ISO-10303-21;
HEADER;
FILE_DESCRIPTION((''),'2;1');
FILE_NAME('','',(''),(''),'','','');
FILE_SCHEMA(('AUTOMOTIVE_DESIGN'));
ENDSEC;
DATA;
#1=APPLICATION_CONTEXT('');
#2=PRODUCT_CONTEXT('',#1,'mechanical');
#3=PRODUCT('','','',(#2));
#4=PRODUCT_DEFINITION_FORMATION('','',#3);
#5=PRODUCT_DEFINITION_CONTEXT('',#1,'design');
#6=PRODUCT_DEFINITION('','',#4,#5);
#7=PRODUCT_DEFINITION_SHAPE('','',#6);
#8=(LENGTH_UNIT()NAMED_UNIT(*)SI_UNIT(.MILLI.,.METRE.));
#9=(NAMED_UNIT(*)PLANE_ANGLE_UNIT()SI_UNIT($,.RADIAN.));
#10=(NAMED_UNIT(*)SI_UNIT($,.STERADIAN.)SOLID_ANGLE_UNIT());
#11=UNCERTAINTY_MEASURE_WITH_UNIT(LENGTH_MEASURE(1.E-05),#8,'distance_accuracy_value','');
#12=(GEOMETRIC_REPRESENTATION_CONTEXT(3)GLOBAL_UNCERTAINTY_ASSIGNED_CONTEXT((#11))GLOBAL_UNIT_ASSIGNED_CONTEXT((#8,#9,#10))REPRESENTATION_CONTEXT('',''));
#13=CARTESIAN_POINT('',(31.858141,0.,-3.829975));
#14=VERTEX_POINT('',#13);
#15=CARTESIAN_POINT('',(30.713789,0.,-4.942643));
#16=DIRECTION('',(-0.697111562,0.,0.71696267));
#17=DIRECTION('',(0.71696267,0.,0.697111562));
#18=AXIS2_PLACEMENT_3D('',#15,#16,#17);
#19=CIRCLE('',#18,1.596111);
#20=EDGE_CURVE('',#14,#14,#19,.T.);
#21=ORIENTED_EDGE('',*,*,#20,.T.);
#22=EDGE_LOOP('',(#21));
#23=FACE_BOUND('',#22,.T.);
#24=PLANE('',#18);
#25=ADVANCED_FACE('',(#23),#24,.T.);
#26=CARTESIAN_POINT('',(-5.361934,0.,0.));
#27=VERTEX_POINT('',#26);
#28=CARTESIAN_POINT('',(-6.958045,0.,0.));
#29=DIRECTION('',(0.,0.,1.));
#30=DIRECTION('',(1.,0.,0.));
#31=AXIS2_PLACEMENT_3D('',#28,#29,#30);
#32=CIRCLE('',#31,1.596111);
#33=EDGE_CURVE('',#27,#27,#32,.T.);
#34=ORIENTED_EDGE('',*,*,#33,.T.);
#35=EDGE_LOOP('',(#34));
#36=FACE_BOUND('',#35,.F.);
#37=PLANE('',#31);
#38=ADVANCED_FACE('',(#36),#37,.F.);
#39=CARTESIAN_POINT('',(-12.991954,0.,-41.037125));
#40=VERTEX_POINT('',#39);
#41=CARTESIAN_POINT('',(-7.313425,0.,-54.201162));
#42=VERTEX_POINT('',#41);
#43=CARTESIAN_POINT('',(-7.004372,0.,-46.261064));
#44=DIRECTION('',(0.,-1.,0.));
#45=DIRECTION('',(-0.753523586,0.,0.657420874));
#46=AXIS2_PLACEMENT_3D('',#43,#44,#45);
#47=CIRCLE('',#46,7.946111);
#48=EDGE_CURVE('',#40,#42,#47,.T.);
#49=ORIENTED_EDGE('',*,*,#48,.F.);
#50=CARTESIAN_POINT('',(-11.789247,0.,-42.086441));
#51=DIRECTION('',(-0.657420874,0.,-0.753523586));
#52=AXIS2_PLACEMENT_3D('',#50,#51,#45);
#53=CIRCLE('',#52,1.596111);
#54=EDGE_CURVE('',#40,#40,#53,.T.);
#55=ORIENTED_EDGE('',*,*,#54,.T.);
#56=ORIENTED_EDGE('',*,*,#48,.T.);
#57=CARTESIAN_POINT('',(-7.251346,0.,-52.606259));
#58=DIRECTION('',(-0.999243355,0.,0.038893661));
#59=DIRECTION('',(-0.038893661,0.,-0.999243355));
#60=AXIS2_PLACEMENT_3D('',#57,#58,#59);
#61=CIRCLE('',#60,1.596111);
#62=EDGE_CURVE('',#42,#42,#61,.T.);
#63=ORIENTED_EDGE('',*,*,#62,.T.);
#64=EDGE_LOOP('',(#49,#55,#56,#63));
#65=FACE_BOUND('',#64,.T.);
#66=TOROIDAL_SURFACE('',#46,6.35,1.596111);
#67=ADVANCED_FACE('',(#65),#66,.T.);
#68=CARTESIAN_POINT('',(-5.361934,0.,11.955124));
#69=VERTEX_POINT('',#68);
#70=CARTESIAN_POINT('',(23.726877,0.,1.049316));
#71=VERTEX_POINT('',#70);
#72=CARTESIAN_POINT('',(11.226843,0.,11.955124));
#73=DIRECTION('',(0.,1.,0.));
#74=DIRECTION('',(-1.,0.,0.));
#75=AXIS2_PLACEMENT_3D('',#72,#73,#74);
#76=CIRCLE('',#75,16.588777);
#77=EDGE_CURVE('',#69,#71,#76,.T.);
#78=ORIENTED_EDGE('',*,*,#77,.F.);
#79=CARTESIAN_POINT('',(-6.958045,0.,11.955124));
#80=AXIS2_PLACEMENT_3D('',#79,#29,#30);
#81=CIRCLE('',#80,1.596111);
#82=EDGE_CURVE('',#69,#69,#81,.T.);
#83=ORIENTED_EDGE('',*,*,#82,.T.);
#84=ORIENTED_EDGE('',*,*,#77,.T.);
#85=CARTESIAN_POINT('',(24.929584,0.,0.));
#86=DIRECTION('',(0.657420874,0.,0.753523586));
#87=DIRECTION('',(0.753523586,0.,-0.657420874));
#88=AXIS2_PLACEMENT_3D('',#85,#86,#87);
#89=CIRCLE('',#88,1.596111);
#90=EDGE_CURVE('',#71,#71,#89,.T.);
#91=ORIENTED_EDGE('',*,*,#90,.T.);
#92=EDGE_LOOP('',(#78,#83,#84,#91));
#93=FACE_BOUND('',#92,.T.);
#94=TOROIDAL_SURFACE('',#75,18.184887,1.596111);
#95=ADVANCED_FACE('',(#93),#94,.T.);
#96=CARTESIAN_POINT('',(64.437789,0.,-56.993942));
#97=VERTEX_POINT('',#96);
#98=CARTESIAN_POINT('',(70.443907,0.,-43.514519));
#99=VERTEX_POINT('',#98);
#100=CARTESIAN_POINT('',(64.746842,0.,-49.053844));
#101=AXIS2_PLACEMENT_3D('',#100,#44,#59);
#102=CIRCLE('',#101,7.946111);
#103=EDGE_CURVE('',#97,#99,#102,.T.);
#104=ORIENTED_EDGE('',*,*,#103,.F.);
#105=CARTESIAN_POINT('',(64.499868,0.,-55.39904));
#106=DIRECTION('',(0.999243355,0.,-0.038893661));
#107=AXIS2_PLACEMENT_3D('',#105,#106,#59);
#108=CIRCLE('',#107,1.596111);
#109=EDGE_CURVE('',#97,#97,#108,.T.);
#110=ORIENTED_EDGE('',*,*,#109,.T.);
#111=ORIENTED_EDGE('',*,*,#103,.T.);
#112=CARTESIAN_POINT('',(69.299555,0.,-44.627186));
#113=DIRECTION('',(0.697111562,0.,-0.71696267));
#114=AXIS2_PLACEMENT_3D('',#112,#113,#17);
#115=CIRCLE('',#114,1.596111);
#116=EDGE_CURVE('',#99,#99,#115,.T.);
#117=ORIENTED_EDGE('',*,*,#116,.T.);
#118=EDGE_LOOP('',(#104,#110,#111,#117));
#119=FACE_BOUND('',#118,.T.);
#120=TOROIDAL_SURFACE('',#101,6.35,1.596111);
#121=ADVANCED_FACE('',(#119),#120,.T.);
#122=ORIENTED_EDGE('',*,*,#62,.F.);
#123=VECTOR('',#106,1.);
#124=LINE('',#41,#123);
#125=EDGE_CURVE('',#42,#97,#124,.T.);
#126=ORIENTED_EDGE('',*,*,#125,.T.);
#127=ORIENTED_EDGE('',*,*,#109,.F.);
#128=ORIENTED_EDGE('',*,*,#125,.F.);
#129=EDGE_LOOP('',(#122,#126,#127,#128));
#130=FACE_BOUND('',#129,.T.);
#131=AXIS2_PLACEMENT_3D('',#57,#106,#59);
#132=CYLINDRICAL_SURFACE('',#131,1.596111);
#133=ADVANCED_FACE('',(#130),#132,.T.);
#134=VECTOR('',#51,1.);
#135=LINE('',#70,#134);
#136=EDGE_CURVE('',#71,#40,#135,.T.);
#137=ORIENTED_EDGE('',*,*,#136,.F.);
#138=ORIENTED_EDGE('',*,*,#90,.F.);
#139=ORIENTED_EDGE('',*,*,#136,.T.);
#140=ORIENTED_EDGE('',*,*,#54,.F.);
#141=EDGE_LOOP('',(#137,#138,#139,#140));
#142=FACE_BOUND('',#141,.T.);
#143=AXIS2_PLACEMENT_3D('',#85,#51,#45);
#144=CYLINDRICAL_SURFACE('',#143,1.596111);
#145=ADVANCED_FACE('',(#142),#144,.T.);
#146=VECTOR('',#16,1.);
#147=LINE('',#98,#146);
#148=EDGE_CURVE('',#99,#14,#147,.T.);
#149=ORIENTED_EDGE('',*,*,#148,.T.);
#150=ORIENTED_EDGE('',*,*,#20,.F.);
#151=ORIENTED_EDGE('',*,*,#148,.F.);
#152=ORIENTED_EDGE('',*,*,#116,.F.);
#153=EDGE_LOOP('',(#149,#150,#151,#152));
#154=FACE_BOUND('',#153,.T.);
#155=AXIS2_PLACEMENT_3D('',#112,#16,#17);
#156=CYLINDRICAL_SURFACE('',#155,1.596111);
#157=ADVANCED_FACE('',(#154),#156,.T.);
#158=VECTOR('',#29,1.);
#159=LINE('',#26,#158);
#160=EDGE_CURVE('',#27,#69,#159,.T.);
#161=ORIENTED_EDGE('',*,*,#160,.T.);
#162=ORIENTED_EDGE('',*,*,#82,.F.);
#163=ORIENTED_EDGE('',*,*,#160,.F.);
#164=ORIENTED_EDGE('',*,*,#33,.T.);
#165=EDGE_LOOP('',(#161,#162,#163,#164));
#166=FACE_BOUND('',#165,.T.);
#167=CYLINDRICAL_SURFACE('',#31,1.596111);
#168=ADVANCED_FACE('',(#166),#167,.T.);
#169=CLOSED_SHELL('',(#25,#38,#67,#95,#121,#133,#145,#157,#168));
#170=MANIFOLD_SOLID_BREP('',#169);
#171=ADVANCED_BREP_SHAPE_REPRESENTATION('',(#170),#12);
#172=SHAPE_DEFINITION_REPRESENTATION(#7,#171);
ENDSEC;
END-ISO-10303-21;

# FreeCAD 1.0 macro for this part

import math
import FreeCAD as App
import Part
import Sketcher
from FreeCAD import Vector
Q = App.Units.Quantity

doc = App.newDocument("Part")
body = doc.addObject("PartDesign::Body", "Body")

# Sketch on XY plane
sketch1 = doc.addObject("Sketcher::SketchObject", "Sketch")
body.addObject(sketch1)
sketch1.AttachmentSupport = (doc.XY_Plane, [""])
sketch1.MapMode = "FlatFace"
sketch1.addGeometry(Part.Circle(Vector(-7, 0, 0), Vector(0, 0, 1), 1.6), False)
sketch1.addConstraint([
    Sketcher.Constraint("PointOnObject", 0, 3, -1),
    Sketcher.Constraint("Diameter", 0, Q("3.192221 mm")),
    Sketcher.Constraint("DistanceX", 0, 3, -1, 1, Q("6.958045 mm")),
])

# Sketch on XZ plane
sketch2 = doc.addObject("Sketcher::SketchObject", "Sketch001")
body.addObject(sketch2)
sketch2.AttachmentSupport = (doc.XZ_Plane, [""])
sketch2.MapMode = "FlatFace"
sketch2.addGeometry([
    Part.LineSegment(Vector(-7, 0, 0), Vector(-7, 12, 0)),  # 0
    Part.ArcOfCircle(Part.Circle(Vector(11, 12, 0), Vector(0, 0, 1), 18), math.radians(-41), math.radians(180)),  # 1
    Part.LineSegment(Vector(25, 0, 0), Vector(-12, -42, 0)),  # 2
    Part.ArcOfCircle(Part.Circle(Vector(-7, -46, 0), Vector(0, 0, 1), 6), math.radians(139), math.radians(268)),  # 3
    Part.LineSegment(Vector(-7, -53, 0), Vector(64, -55, 0)),  # 4
    Part.ArcOfCircle(Part.Circle(Vector(65, -49, 0), Vector(0, 0, 1), 6), math.radians(-92), math.radians(44)),  # 5
    Part.LineSegment(Vector(69, -45, 0), Vector(31, -5, 0)),  # 6
], False)
sketch2.addConstraint([
    Sketcher.Constraint("Tangent", 0, 2, 1, 2),
    Sketcher.Constraint("Tangent", 1, 1, 2, 1),
    Sketcher.Constraint("Tangent", 2, 2, 3, 1),
    Sketcher.Constraint("Tangent", 3, 2, 4, 1),
    Sketcher.Constraint("Tangent", 4, 2, 5, 1),
    Sketcher.Constraint("Tangent", 5, 2, 6, 1),
    Sketcher.Constraint("Vertical", 0),
    Sketcher.Constraint("Equal", 3, 5),
    Sketcher.Constraint("PointOnObject", 0, 1, -1),
    Sketcher.Constraint("PointOnObject", 1, 1, -1),
    Sketcher.Constraint("Radius", 3, Q("0.25 in")),
    Sketcher.Constraint("Radius", 1, Q("18.184887 mm")),
    Sketcher.Constraint("DistanceX", 1, 3, 5, 3, Q("53.52 mm")),
    Sketcher.Constraint("DistanceX", 2, 2, 0, 1, Q("4.831202 mm")),
    Sketcher.Constraint("DistanceX", 2, 2, 3, 2, Q("4.5379 mm")),
    Sketcher.Constraint("DistanceY", 4, 2, 2, 2, Q("13.312598 mm")),
    Sketcher.Constraint("DistanceX", 3, 2, 5, 2, Q("76.550902 mm")),
    Sketcher.Constraint("Distance", 6, Q("55.35092 mm")),
    Sketcher.Constraint("DistanceX", 3, 3, -1, 1, Q("7.004372 mm")),
])
doc.recompute()

additivepipe = doc.addObject("PartDesign::AdditivePipe", "AdditivePipe")
body.addObject(additivepipe)
additivepipe.Profile = sketch1
additivepipe.Spine = (sketch2, ["Edge1", "Edge2", "Edge3", "Edge4", "Edge5", "Edge6", "Edge7"])

doc.recompute()
